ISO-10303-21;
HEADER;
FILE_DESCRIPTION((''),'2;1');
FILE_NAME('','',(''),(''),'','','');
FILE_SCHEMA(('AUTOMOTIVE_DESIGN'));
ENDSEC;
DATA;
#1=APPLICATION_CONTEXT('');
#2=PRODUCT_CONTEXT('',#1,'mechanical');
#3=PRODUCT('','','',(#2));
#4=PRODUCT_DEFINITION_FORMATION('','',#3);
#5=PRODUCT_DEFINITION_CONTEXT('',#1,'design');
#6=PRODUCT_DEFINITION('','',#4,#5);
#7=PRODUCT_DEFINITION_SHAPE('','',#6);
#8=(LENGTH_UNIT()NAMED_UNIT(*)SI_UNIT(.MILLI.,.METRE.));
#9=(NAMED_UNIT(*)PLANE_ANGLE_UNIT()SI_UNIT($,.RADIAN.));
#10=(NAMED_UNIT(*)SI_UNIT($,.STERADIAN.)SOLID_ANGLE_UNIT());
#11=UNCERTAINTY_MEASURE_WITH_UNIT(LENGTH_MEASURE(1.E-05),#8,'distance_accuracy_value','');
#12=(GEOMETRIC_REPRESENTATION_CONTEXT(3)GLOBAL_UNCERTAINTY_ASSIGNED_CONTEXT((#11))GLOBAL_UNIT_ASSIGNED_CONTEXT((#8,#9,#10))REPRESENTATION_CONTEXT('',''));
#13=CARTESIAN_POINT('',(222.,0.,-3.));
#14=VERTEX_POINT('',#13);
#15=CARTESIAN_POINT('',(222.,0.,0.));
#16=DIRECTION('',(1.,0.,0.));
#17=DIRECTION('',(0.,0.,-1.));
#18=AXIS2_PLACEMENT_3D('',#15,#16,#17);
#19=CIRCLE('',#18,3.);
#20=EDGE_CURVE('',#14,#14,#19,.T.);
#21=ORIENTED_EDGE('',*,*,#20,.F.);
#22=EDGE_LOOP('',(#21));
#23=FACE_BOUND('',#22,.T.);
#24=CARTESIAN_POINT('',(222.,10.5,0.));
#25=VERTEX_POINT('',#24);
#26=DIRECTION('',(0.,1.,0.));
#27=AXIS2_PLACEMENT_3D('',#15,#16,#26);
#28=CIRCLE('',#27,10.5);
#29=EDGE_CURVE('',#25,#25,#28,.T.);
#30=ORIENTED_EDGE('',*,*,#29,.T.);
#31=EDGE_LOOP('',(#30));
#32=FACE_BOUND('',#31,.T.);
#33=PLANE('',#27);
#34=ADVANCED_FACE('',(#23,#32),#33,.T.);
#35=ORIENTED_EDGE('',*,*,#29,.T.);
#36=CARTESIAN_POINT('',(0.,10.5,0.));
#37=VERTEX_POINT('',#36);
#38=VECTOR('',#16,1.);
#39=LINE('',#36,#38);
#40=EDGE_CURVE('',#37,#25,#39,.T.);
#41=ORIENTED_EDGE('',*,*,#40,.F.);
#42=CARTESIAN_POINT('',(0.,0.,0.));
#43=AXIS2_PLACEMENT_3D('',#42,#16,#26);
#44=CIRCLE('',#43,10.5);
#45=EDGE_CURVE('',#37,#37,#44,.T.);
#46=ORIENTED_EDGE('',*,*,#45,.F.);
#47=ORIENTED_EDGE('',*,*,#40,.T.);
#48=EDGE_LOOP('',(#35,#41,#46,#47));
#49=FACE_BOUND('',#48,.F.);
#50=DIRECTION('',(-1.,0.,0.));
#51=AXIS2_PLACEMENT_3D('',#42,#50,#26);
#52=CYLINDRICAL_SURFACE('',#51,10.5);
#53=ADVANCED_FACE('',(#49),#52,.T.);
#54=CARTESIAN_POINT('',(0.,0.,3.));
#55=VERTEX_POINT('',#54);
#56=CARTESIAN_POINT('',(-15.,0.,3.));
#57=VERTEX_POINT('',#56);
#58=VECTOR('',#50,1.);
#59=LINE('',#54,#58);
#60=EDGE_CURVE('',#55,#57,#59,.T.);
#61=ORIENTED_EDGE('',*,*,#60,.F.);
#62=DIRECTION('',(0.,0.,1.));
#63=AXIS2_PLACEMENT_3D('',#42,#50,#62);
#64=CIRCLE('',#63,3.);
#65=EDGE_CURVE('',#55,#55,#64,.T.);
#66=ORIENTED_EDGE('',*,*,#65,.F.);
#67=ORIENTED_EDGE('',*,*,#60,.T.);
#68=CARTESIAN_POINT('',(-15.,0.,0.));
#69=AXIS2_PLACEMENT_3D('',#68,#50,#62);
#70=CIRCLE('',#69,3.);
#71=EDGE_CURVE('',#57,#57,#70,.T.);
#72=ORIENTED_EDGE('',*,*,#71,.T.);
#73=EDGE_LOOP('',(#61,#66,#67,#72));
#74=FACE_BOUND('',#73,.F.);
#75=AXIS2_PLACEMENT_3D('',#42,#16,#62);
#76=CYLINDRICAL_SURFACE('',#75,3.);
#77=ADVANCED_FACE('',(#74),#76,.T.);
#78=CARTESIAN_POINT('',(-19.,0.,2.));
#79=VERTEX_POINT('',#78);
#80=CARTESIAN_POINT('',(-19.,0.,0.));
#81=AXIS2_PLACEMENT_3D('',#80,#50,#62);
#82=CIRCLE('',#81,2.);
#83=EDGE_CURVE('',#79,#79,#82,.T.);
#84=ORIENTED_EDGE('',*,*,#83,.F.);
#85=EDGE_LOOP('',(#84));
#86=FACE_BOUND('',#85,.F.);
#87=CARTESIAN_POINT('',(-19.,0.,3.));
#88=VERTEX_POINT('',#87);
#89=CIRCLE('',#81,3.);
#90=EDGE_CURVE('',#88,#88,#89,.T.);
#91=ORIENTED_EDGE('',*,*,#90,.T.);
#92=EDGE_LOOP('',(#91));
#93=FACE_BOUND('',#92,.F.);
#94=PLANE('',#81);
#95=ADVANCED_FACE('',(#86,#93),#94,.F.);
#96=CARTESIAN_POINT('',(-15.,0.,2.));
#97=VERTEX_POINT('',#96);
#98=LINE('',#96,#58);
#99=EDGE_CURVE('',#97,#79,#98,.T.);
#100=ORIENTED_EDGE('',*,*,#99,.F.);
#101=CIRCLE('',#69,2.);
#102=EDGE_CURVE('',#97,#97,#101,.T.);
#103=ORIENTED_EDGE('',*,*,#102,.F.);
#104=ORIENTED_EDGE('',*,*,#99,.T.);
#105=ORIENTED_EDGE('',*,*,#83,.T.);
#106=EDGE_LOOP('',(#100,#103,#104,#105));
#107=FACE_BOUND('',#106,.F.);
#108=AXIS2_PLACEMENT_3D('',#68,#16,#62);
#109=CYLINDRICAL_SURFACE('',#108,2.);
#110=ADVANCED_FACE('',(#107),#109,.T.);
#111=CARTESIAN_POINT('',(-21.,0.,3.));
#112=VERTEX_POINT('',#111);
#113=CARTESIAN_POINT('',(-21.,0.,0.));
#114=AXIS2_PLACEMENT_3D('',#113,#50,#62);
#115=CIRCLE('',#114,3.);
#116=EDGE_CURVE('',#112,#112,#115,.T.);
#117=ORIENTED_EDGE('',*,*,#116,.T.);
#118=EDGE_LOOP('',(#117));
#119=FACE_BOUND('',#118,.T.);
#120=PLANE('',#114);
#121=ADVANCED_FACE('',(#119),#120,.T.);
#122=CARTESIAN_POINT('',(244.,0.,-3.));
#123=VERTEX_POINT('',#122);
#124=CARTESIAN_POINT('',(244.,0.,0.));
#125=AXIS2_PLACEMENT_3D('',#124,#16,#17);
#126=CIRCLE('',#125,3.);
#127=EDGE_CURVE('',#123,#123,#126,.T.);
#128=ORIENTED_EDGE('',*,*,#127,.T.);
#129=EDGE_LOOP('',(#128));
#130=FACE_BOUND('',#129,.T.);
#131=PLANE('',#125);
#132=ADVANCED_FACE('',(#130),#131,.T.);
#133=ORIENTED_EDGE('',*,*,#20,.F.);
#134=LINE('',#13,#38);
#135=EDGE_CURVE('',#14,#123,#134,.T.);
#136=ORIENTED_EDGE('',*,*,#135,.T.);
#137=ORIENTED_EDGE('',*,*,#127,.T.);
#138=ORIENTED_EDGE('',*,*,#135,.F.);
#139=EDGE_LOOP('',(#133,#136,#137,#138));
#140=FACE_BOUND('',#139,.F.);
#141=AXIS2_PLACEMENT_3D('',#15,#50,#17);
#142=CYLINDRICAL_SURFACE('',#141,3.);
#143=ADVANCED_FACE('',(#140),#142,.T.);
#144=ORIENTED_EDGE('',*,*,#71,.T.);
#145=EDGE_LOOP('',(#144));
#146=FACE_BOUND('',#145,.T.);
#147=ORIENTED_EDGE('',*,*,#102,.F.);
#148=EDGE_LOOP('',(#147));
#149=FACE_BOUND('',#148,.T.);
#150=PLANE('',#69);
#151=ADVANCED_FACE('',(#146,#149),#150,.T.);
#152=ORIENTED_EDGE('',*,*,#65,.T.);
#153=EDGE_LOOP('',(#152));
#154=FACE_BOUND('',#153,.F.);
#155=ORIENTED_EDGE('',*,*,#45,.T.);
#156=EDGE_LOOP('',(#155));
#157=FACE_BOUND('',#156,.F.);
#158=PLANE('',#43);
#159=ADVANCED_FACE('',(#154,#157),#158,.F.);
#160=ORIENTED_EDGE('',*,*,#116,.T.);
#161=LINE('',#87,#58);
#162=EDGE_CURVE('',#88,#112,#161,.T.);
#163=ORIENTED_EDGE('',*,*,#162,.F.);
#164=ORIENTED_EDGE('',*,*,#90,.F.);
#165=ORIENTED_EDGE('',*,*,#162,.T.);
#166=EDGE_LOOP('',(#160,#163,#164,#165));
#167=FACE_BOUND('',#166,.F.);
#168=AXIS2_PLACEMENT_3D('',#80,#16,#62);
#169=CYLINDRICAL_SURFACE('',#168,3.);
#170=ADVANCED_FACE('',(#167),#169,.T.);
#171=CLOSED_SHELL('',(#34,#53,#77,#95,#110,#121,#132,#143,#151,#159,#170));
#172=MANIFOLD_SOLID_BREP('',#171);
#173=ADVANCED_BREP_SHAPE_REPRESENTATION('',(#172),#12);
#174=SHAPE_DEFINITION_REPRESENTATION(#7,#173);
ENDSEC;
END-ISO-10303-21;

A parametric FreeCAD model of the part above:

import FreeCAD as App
import Part
import Sketcher

doc = App.newDocument("Part")
body = doc.addObject("PartDesign::Body", "Body")

# Sketch on YZ plane
sketch1 = body.newObject("Sketcher::SketchObject", "Sketch")
sketch1.AttachmentSupport = (doc.getObject("YZ_Plane"), [""])
sketch1.MapMode = "FlatFace"
sketch1.addGeometry(Part.Circle(App.Vector(0, 0, 0), App.Vector(0, 0, 1), 10), False)
sketch1.addConstraint([
    Sketcher.Constraint("Coincident", 0, 3, -1, 1),
    Sketcher.Constraint("Diameter", 0, 21.0),
])
pad1 = body.newObject("PartDesign::Pad", "Pad")
pad1.Profile = sketch1
pad1.Length = 222

# Sketch on YZ plane
sketch2 = body.newObject("Sketcher::SketchObject", "Sketch001")
sketch2.AttachmentSupport = (doc.getObject("YZ_Plane"), [""])
sketch2.MapMode = "FlatFace"
sketch2.AttachmentOffset = App.Placement(App.Vector(0, 0, 222), App.Rotation())
sketch2.addGeometry(Part.Circle(App.Vector(0, 0, 0), App.Vector(0, 0, 1), 3), False)
sketch2.addConstraint([
    Sketcher.Constraint("Coincident", 0, 3, -1, 1),
    Sketcher.Constraint("Diameter", 0, 6.0),
])
pad2 = body.newObject("PartDesign::Pad", "Pad001")
pad2.Profile = sketch2
pad2.Length = 22

# Sketch on YZ plane
sketch3 = body.newObject("Sketcher::SketchObject", "Sketch002")
sketch3.AttachmentSupport = (doc.getObject("YZ_Plane"), [""])
sketch3.MapMode = "FlatFace"
sketch3.addGeometry(Part.Circle(App.Vector(0, 0, 0), App.Vector(0, 0, 1), 3), False)
sketch3.addConstraint([
    Sketcher.Constraint("Coincident", 0, 3, -1, 1),
    Sketcher.Constraint("Diameter", 0, 6.0),
])
pad3 = body.newObject("PartDesign::Pad", "Pad002")
pad3.Profile = sketch3
pad3.Length = 15
pad3.Reversed = True

# Sketch on YZ plane
sketch4 = body.newObject("Sketcher::SketchObject", "Sketch003")
sketch4.AttachmentSupport = (doc.getObject("YZ_Plane"), [""])
sketch4.MapMode = "FlatFace"
sketch4.AttachmentOffset = App.Placement(App.Vector(0, 0, -15), App.Rotation())
sketch4.addGeometry(Part.Circle(App.Vector(0, 0, 0), App.Vector(0, 0, 1), 2), False)
sketch4.addConstraint([
    Sketcher.Constraint("Coincident", 0, 3, -1, 1),
    Sketcher.Constraint("Diameter", 0, 4.0),
])
pad4 = body.newObject("PartDesign::Pad", "Pad003")
pad4.Profile = sketch4
pad4.Length = 4
pad4.Reversed = True

# Sketch on YZ plane
sketch5 = body.newObject("Sketcher::SketchObject", "Sketch004")
sketch5.AttachmentSupport = (doc.getObject("YZ_Plane"), [""])
sketch5.MapMode = "FlatFace"
sketch5.AttachmentOffset = App.Placement(App.Vector(0, 0, -19), App.Rotation())
sketch5.addGeometry(Part.Circle(App.Vector(0, 0, 0), App.Vector(0, 0, 1), 3), False)
sketch5.addConstraint([
    Sketcher.Constraint("Coincident", 0, 3, -1, 1),
    Sketcher.Constraint("Diameter", 0, 6.0),
])
pad5 = body.newObject("PartDesign::Pad", "Pad004")
pad5.Profile = sketch5
pad5.Length = 2
pad5.Reversed = True

doc.recompute()
